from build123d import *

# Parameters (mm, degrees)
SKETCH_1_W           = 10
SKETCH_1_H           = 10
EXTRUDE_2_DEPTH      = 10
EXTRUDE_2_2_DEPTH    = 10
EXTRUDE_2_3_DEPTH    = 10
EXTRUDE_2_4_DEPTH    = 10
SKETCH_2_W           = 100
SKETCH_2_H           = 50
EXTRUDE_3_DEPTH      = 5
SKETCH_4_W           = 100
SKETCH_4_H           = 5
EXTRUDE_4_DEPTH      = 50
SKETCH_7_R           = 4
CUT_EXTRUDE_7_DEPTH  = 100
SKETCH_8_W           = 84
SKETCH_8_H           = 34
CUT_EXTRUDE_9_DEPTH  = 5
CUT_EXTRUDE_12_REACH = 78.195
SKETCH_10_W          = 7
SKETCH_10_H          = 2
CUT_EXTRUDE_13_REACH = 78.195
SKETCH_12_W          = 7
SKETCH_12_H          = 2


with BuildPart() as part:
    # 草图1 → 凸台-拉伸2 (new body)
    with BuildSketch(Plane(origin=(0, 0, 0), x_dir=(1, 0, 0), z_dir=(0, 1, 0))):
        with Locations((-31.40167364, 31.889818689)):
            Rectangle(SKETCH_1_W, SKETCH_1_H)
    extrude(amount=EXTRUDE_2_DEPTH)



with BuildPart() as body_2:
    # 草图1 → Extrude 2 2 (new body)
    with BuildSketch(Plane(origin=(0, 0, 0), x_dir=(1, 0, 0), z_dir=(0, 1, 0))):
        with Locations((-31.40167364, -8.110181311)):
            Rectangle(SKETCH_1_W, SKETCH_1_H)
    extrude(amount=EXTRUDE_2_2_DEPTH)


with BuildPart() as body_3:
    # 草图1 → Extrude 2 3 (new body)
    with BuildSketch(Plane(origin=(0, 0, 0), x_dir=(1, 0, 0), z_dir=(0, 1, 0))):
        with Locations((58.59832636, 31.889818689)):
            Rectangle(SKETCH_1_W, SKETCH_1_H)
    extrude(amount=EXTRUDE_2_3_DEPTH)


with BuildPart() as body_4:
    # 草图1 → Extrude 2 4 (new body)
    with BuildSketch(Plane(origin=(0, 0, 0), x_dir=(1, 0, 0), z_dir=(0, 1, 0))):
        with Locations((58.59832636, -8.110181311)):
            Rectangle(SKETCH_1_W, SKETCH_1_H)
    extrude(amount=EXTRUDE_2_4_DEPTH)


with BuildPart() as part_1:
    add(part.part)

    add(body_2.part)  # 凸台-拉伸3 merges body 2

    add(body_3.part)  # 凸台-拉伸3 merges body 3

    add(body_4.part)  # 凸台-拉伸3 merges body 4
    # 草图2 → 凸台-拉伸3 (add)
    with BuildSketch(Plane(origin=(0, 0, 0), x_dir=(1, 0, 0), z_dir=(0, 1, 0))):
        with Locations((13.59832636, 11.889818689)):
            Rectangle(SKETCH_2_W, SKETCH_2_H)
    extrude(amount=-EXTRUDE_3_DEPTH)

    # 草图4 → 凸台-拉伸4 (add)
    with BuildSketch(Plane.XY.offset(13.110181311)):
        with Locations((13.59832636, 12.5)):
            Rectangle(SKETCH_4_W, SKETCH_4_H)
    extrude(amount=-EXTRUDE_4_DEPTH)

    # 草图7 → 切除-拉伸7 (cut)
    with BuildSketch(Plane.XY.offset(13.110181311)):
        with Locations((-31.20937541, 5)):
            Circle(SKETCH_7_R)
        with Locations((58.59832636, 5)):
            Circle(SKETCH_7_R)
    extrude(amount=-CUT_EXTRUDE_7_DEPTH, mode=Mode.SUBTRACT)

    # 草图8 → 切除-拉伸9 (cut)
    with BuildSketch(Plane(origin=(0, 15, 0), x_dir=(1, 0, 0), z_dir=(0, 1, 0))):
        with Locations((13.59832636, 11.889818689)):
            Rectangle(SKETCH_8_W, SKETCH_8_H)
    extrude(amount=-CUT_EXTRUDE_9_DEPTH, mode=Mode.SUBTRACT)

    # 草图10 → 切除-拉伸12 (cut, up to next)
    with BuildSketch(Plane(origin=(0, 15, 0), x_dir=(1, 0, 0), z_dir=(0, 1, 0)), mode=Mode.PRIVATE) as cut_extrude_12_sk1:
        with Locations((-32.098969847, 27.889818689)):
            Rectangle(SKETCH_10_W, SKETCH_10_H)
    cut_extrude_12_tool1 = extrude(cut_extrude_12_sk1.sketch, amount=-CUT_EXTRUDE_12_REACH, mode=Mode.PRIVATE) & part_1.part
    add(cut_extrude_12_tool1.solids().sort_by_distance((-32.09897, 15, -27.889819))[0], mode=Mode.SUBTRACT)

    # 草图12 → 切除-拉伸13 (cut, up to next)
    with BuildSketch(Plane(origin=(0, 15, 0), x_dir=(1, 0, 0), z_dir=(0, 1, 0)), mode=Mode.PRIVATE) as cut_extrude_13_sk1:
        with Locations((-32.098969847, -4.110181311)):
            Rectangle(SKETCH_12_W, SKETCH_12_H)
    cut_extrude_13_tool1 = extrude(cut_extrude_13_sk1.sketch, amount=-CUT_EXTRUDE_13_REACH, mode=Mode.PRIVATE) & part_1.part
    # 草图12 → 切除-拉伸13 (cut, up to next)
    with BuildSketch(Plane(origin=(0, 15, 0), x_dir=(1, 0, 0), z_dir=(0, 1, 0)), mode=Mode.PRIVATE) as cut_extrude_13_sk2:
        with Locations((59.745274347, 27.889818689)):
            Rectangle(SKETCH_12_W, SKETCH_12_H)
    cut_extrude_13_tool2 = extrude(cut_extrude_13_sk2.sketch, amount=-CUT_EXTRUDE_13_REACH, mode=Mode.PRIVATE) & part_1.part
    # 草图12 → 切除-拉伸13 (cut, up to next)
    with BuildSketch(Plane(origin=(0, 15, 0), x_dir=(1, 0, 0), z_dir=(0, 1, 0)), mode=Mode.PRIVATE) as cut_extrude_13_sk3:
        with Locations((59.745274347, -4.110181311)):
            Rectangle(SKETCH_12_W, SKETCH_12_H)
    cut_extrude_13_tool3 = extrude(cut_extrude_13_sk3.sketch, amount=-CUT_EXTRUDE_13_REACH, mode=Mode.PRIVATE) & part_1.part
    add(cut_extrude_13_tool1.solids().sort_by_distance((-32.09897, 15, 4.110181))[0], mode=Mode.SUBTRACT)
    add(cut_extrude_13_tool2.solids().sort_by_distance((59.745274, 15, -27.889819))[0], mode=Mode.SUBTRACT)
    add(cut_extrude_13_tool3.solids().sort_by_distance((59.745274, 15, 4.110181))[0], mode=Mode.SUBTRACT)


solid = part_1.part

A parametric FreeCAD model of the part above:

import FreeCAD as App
import Part
import Sketcher

doc = App.newDocument("Part")
params = doc.addObject("Spreadsheet::Sheet", "Params")
for row, (alias, value) in enumerate([
    ("sketch1_width", "10 mm"),
    ("pad1_length", "10 mm"),
    ("sketch2_width", "10 mm"),
    ("pad2_length", "10 mm"),
    ("sketch3_width", "10 mm"),
    ("pad3_length", "10 mm"),
    ("sketch4_width", "10 mm"),
    ("pad4_length", "10 mm"),
    ("sketch5_width", "100 mm"),
    ("sketch5_height", "50 mm"),
    ("pad5_length", "5 mm"),
    ("sketch6_width", "100 mm"),
    ("sketch6_height", "5 mm"),
    ("pad6_length", "50 mm"),
    ("sketch7_diameter", "8 mm"),
    ("pocket1_length", "100 mm"),
    ("sketch8_width", "84 mm"),
    ("sketch8_height", "34 mm"),
    ("pocket2_length", "5 mm"),
    ("sketch9_width", "7 mm"),
    ("sketch9_height", "2 mm"),
    ("pocket3_length", "20 mm"),
    ("sketch10_width", "7 mm"),
    ("sketch10_height", "2 mm"),
    ("sketch11_width", "7 mm"),
    ("sketch11_height", "2 mm"),
    ("pocket5_length", "20 mm"),
    ("sketch12_width", "7 mm"),
    ("sketch12_height", "2 mm"),
    ("pocket6_length", "20 mm"),
], start=1):
    params.set(f"A{row}", alias)
    params.set(f"B{row}", "=" + value)
    params.setAlias(f"B{row}", alias)

body = doc.addObject("PartDesign::Body", "Body")

sketch1 = body.newObject("Sketcher::SketchObject", "Sketch")
sketch1.AttachmentSupport = (doc.getObject("XZ_Plane"), [""])
sketch1.MapMode = "FlatFace"
sketch1.addGeometry([
    Part.LineSegment(App.Vector(-36.401674, -36.889819, 0), App.Vector(-36.401674, -26.889819, 0)),
    Part.LineSegment(App.Vector(-36.401674, -26.889819, 0), App.Vector(-26.401674, -26.889819, 0)),
    Part.LineSegment(App.Vector(-26.401674, -26.889819, 0), App.Vector(-26.401674, -36.889819, 0)),
    Part.LineSegment(App.Vector(-26.401674, -36.889819, 0), App.Vector(-36.401674, -36.889819, 0)),
], False)
sketch1.addConstraint([
    Sketcher.Constraint("Coincident", 0, 2, 1, 1),
    Sketcher.Constraint("Coincident", 1, 2, 2, 1),
    Sketcher.Constraint("Coincident", 2, 2, 3, 1),
    Sketcher.Constraint("Coincident", 3, 2, 0, 1),
    Sketcher.Constraint("Vertical", 0),
    Sketcher.Constraint("Horizontal", 1),
    Sketcher.Constraint("Vertical", 2),
    Sketcher.Constraint("Horizontal", 3),
    Sketcher.Constraint("Equal", 3, 0),
    Sketcher.Constraint("DistanceX", 1, 1, 1, 2, 10.0),
    Sketcher.Constraint("DistanceY", 0, 2, -1, 1, 26.889819),
    Sketcher.Constraint("DistanceX", 0, 2, -1, 1, 36.401674),
])
sketch1.setExpression("Constraints[9]", "Params.sketch1_width")
pad1 = body.newObject("PartDesign::Pad", "Pad")
pad1.Profile = sketch1
pad1.setExpression("Length", "Params.pad1_length")
pad1.Reversed = True
body2 = doc.addObject("PartDesign::Body", "Body001")

sketch2 = body2.newObject("Sketcher::SketchObject", "Sketch001")
sketch2.AttachmentSupport = (doc.getObject("XZ_Plane001"), [""])
sketch2.MapMode = "FlatFace"
sketch2.addGeometry([
    Part.LineSegment(App.Vector(-36.401674, 3.110181, 0), App.Vector(-36.401674, 13.110181, 0)),
    Part.LineSegment(App.Vector(-36.401674, 13.110181, 0), App.Vector(-26.401674, 13.110181, 0)),
    Part.LineSegment(App.Vector(-26.401674, 13.110181, 0), App.Vector(-26.401674, 3.110181, 0)),
    Part.LineSegment(App.Vector(-26.401674, 3.110181, 0), App.Vector(-36.401674, 3.110181, 0)),
], False)
sketch2.addConstraint([
    Sketcher.Constraint("Coincident", 0, 2, 1, 1),
    Sketcher.Constraint("Coincident", 1, 2, 2, 1),
    Sketcher.Constraint("Coincident", 2, 2, 3, 1),
    Sketcher.Constraint("Coincident", 3, 2, 0, 1),
    Sketcher.Constraint("Vertical", 0),
    Sketcher.Constraint("Horizontal", 1),
    Sketcher.Constraint("Vertical", 2),
    Sketcher.Constraint("Horizontal", 3),
    Sketcher.Constraint("Equal", 3, 0),
    Sketcher.Constraint("DistanceX", 1, 1, 1, 2, 10.0),
    Sketcher.Constraint("DistanceY", -1, 1, 0, 2, 13.110181),
    Sketcher.Constraint("DistanceX", 0, 2, -1, 1, 36.401674),
])
sketch2.setExpression("Constraints[9]", "Params.sketch2_width")
pad2 = body2.newObject("PartDesign::Pad", "Pad001")
pad2.Profile = sketch2
pad2.setExpression("Length", "Params.pad2_length")
pad2.Reversed = True
body3 = doc.addObject("PartDesign::Body", "Body002")

sketch3 = body3.newObject("Sketcher::SketchObject", "Sketch002")
sketch3.AttachmentSupport = (doc.getObject("XZ_Plane002"), [""])
sketch3.MapMode = "FlatFace"
sketch3.addGeometry([
    Part.LineSegment(App.Vector(53.598326, -36.889819, 0), App.Vector(53.598326, -26.889819, 0)),
    Part.LineSegment(App.Vector(53.598326, -26.889819, 0), App.Vector(63.598326, -26.889819, 0)),
    Part.LineSegment(App.Vector(63.598326, -26.889819, 0), App.Vector(63.598326, -36.889819, 0)),
    Part.LineSegment(App.Vector(63.598326, -36.889819, 0), App.Vector(53.598326, -36.889819, 0)),
], False)
sketch3.addConstraint([
    Sketcher.Constraint("Coincident", 0, 2, 1, 1),
    Sketcher.Constraint("Coincident", 1, 2, 2, 1),
    Sketcher.Constraint("Coincident", 2, 2, 3, 1),
    Sketcher.Constraint("Coincident", 3, 2, 0, 1),
    Sketcher.Constraint("Vertical", 0),
    Sketcher.Constraint("Horizontal", 1),
    Sketcher.Constraint("Vertical", 2),
    Sketcher.Constraint("Horizontal", 3),
    Sketcher.Constraint("Equal", 3, 0),
    Sketcher.Constraint("DistanceX", 1, 1, 1, 2, 10.0),
    Sketcher.Constraint("DistanceY", 0, 2, -1, 1, 26.889819),
    Sketcher.Constraint("DistanceX", -1, 1, 0, 2, 53.598326),
])
sketch3.setExpression("Constraints[9]", "Params.sketch3_width")
pad3 = body3.newObject("PartDesign::Pad", "Pad002")
pad3.Profile = sketch3
pad3.setExpression("Length", "Params.pad3_length")
pad3.Reversed = True
body4 = doc.addObject("PartDesign::Body", "Body003")

sketch4 = body4.newObject("Sketcher::SketchObject", "Sketch003")
sketch4.AttachmentSupport = (doc.getObject("XZ_Plane003"), [""])
sketch4.MapMode = "FlatFace"
sketch4.addGeometry([
    Part.LineSegment(App.Vector(53.598326, 3.110181, 0), App.Vector(53.598326, 13.110181, 0)),
    Part.LineSegment(App.Vector(53.598326, 13.110181, 0), App.Vector(63.598326, 13.110181, 0)),
    Part.LineSegment(App.Vector(63.598326, 13.110181, 0), App.Vector(63.598326, 3.110181, 0)),
    Part.LineSegment(App.Vector(63.598326, 3.110181, 0), App.Vector(53.598326, 3.110181, 0)),
], False)
sketch4.addConstraint([
    Sketcher.Constraint("Coincident", 0, 2, 1, 1),
    Sketcher.Constraint("Coincident", 1, 2, 2, 1),
    Sketcher.Constraint("Coincident", 2, 2, 3, 1),
    Sketcher.Constraint("Coincident", 3, 2, 0, 1),
    Sketcher.Constraint("Vertical", 0),
    Sketcher.Constraint("Horizontal", 1),
    Sketcher.Constraint("Vertical", 2),
    Sketcher.Constraint("Horizontal", 3),
    Sketcher.Constraint("Equal", 3, 0),
    Sketcher.Constraint("DistanceX", 1, 1, 1, 2, 10.0),
    Sketcher.Constraint("DistanceY", -1, 1, 0, 2, 13.110181),
    Sketcher.Constraint("DistanceX", -1, 1, 0, 2, 53.598326),
])
sketch4.setExpression("Constraints[9]", "Params.sketch4_width")
pad4 = body4.newObject("PartDesign::Pad", "Pad003")
pad4.Profile = sketch4
pad4.setExpression("Length", "Params.pad4_length")
pad4.Reversed = True
body.AllowCompound = True
doc.recompute()

boolean = body.newObject("PartDesign::Boolean", "Boolean")
boolean.Type = "Fuse"
boolean.addObjects([body2])
doc.recompute()

boolean2 = body.newObject("PartDesign::Boolean", "Boolean001")
boolean2.Type = "Fuse"
boolean2.addObjects([body3])
doc.recompute()

boolean3 = body.newObject("PartDesign::Boolean", "Boolean002")
boolean3.Type = "Fuse"
boolean3.addObjects([body4])

sketch5 = body.newObject("Sketcher::SketchObject", "Sketch004")
sketch5.AttachmentSupport = (doc.getObject("XZ_Plane"), [""])
sketch5.MapMode = "FlatFace"
sketch5.addGeometry([
    Part.LineSegment(App.Vector(-36.401674, -36.889819, 0), App.Vector(-36.401674, 13.110181, 0)),
    Part.LineSegment(App.Vector(-36.401674, 13.110181, 0), App.Vector(63.598326, 13.110181, 0)),
    Part.LineSegment(App.Vector(63.598326, 13.110181, 0), App.Vector(63.598326, -36.889819, 0)),
    Part.LineSegment(App.Vector(63.598326, -36.889819, 0), App.Vector(-36.401674, -36.889819, 0)),
], False)
sketch5.addConstraint([
    Sketcher.Constraint("Coincident", 0, 2, 1, 1),
    Sketcher.Constraint("Coincident", 1, 2, 2, 1),
    Sketcher.Constraint("Coincident", 2, 2, 3, 1),
    Sketcher.Constraint("Coincident", 3, 2, 0, 1),
    Sketcher.Constraint("Vertical", 0),
    Sketcher.Constraint("Horizontal", 1),
    Sketcher.Constraint("Vertical", 2),
    Sketcher.Constraint("Horizontal", 3),
    Sketcher.Constraint("DistanceX", 1, 1, 1, 2, 100.0),
    Sketcher.Constraint("DistanceY", 0, 1, 0, 2, 50.0),
    Sketcher.Constraint("DistanceY", -1, 1, 0, 2, 13.110181),
    Sketcher.Constraint("DistanceX", 0, 2, -1, 1, 36.401674),
])
sketch5.setExpression("Constraints[8]", "Params.sketch5_width")
sketch5.setExpression("Constraints[9]", "Params.sketch5_height")
pad5 = body.newObject("PartDesign::Pad", "Pad004")
pad5.Profile = sketch5
pad5.setExpression("Length", "Params.pad5_length")

sketch6 = body.newObject("Sketcher::SketchObject", "Sketch005")
sketch6.AttachmentSupport = (doc.getObject("XY_Plane"), [""])
sketch6.MapMode = "FlatFace"
sketch6.AttachmentOffset = App.Placement(App.Vector(0, 0, 13.110181), App.Rotation())
sketch6.addGeometry([
    Part.LineSegment(App.Vector(-36.401674, 15, 0), App.Vector(-36.401674, 10, 0)),
    Part.LineSegment(App.Vector(-36.401674, 10, 0), App.Vector(63.598326, 10, 0)),
    Part.LineSegment(App.Vector(63.598326, 10, 0), App.Vector(63.598326, 15, 0)),
    Part.LineSegment(App.Vector(63.598326, 15, 0), App.Vector(-36.401674, 15, 0)),
], False)
sketch6.addConstraint([
    Sketcher.Constraint("Coincident", 0, 2, 1, 1),
    Sketcher.Constraint("Coincident", 1, 2, 2, 1),
    Sketcher.Constraint("Coincident", 2, 2, 3, 1),
    Sketcher.Constraint("Coincident", 3, 2, 0, 1),
    Sketcher.Constraint("Vertical", 0),
    Sketcher.Constraint("Horizontal", 1),
    Sketcher.Constraint("Vertical", 2),
    Sketcher.Constraint("Horizontal", 3),
    Sketcher.Constraint("DistanceX", 1, 1, 1, 2, 100.0),
    Sketcher.Constraint("DistanceY", 0, 2, 0, 1, 5.0),
    Sketcher.Constraint("DistanceY", -1, 1, 0, 2, 10.0),
    Sketcher.Constraint("DistanceX", 0, 2, -1, 1, 36.401674),
])
sketch6.setExpression("Constraints[8]", "Params.sketch6_width")
sketch6.setExpression("Constraints[9]", "Params.sketch6_height")
pad6 = body.newObject("PartDesign::Pad", "Pad005")
pad6.Profile = sketch6
pad6.setExpression("Length", "Params.pad6_length")
pad6.Reversed = True

sketch7 = body.newObject("Sketcher::SketchObject", "Sketch006")
sketch7.AttachmentSupport = (doc.getObject("XY_Plane"), [""])
sketch7.MapMode = "FlatFace"
sketch7.AttachmentOffset = App.Placement(App.Vector(0, 0, 13.110181), App.Rotation())
sketch7.addGeometry([
    Part.Circle(App.Vector(-31.209375, 5, 0), App.Vector(0, 0, 1), 4),
    Part.Circle(App.Vector(58.598326, 5, 0), App.Vector(0, 0, 1), 4),
], False)
sketch7.addConstraint([
    Sketcher.Constraint("Equal", 0, 1),
    Sketcher.Constraint("Horizontal", 0, 3, 1, 3),
    Sketcher.Constraint("Diameter", 0, 8.0),
    Sketcher.Constraint("DistanceY", -1, 1, 0, 3, 5.0),
    Sketcher.Constraint("DistanceX", 0, 3, 1, 3, 89.807702),
    Sketcher.Constraint("DistanceX", 0, 3, -1, 1, 31.209375),
])
sketch7.setExpression("Constraints[2]", "Params.sketch7_diameter")
pocket1 = body.newObject("PartDesign::Pocket", "Pocket")
pocket1.Profile = sketch7
pocket1.setExpression("Length", "Params.pocket1_length")

sketch8 = body.newObject("Sketcher::SketchObject", "Sketch007")
sketch8.AttachmentSupport = (doc.getObject("XZ_Plane"), [""])
sketch8.MapMode = "FlatFace"
sketch8.AttachmentOffset = App.Placement(App.Vector(0, 0, -15), App.Rotation())
sketch8.addGeometry([
    Part.LineSegment(App.Vector(-28.401674, -28.889819, 0), App.Vector(-28.401674, 5.110181, 0)),
    Part.LineSegment(App.Vector(-28.401674, 5.110181, 0), App.Vector(55.598326, 5.110181, 0)),
    Part.LineSegment(App.Vector(55.598326, 5.110181, 0), App.Vector(55.598326, -28.889819, 0)),
    Part.LineSegment(App.Vector(55.598326, -28.889819, 0), App.Vector(-28.401674, -28.889819, 0)),
], False)
sketch8.addConstraint([
    Sketcher.Constraint("Coincident", 0, 2, 1, 1),
    Sketcher.Constraint("Coincident", 1, 2, 2, 1),
    Sketcher.Constraint("Coincident", 2, 2, 3, 1),
    Sketcher.Constraint("Coincident", 3, 2, 0, 1),
    Sketcher.Constraint("Vertical", 0),
    Sketcher.Constraint("Horizontal", 1),
    Sketcher.Constraint("Vertical", 2),
    Sketcher.Constraint("Horizontal", 3),
    Sketcher.Constraint("DistanceX", 1, 1, 1, 2, 84.0),
    Sketcher.Constraint("DistanceY", 0, 1, 0, 2, 34.0),
    Sketcher.Constraint("DistanceY", -1, 1, 0, 2, 5.110181),
    Sketcher.Constraint("DistanceX", 0, 2, -1, 1, 28.401674),
])
sketch8.setExpression("Constraints[8]", "Params.sketch8_width")
sketch8.setExpression("Constraints[9]", "Params.sketch8_height")
pocket2 = body.newObject("PartDesign::Pocket", "Pocket001")
pocket2.Profile = sketch8
pocket2.setExpression("Length", "Params.pocket2_length")
pocket2.Reversed = True

sketch9 = body.newObject("Sketcher::SketchObject", "Sketch008")
sketch9.AttachmentSupport = (doc.getObject("XZ_Plane"), [""])
sketch9.MapMode = "FlatFace"
sketch9.AttachmentOffset = App.Placement(App.Vector(0, 0, -15), App.Rotation())
sketch9.addGeometry([
    Part.LineSegment(App.Vector(-35.59897, -28.889819, 0), App.Vector(-35.59897, -26.889819, 0)),
    Part.LineSegment(App.Vector(-35.59897, -26.889819, 0), App.Vector(-28.59897, -26.889819, 0)),
    Part.LineSegment(App.Vector(-28.59897, -26.889819, 0), App.Vector(-28.59897, -28.889819, 0)),
    Part.LineSegment(App.Vector(-28.59897, -28.889819, 0), App.Vector(-35.59897, -28.889819, 0)),
], False)
sketch9.addConstraint([
    Sketcher.Constraint("Coincident", 0, 2, 1, 1),
    Sketcher.Constraint("Coincident", 1, 2, 2, 1),
    Sketcher.Constraint("Coincident", 2, 2, 3, 1),
    Sketcher.Constraint("Coincident", 3, 2, 0, 1),
    Sketcher.Constraint("Vertical", 0),
    Sketcher.Constraint("Horizontal", 1),
    Sketcher.Constraint("Vertical", 2),
    Sketcher.Constraint("Horizontal", 3),
    Sketcher.Constraint("DistanceX", 1, 1, 1, 2, 7.0),
    Sketcher.Constraint("DistanceY", 0, 1, 0, 2, 2.0),
    Sketcher.Constraint("DistanceX", 0, 2, -1, 1, 35.59897),
    Sketcher.Constraint("DistanceY", 0, 2, -1, 1, 26.889819),
])
sketch9.setExpression("Constraints[8]", "Params.sketch9_width")
sketch9.setExpression("Constraints[9]", "Params.sketch9_height")
pocket3 = body.newObject("PartDesign::Pocket", "Pocket002")
pocket3.Profile = sketch9
pocket3.setExpression("Length", "Params.pocket3_length")
pocket3.Reversed = True

sketch10 = body.newObject("Sketcher::SketchObject", "Sketch009")
sketch10.AttachmentSupport = (doc.getObject("XZ_Plane"), [""])
sketch10.MapMode = "FlatFace"
sketch10.AttachmentOffset = App.Placement(App.Vector(0, 0, -15), App.Rotation())
sketch10.addGeometry([
    Part.LineSegment(App.Vector(-35.59897, 3.110181, 0), App.Vector(-35.59897, 5.110181, 0)),
    Part.LineSegment(App.Vector(-35.59897, 5.110181, 0), App.Vector(-28.59897, 5.110181, 0)),
    Part.LineSegment(App.Vector(-28.59897, 5.110181, 0), App.Vector(-28.59897, 3.110181, 0)),
    Part.LineSegment(App.Vector(-28.59897, 3.110181, 0), App.Vector(-35.59897, 3.110181, 0)),
], False)
sketch10.addConstraint([
    Sketcher.Constraint("Coincident", 0, 2, 1, 1),
    Sketcher.Constraint("Coincident", 1, 2, 2, 1),
    Sketcher.Constraint("Coincident", 2, 2, 3, 1),
    Sketcher.Constraint("Coincident", 3, 2, 0, 1),
    Sketcher.Constraint("Vertical", 0),
    Sketcher.Constraint("Horizontal", 1),
    Sketcher.Constraint("Vertical", 2),
    Sketcher.Constraint("Horizontal", 3),
    Sketcher.Constraint("DistanceX", 1, 1, 1, 2, 7.0),
    Sketcher.Constraint("DistanceY", 0, 1, 0, 2, 2.0),
    Sketcher.Constraint("DistanceX", 0, 2, -1, 1, 35.59897),
    Sketcher.Constraint("DistanceY", -1, 1, 0, 2, 5.110181),
])
sketch10.setExpression("Constraints[8]", "Params.sketch10_width")
sketch10.setExpression("Constraints[9]", "Params.sketch10_height")
pocket4 = body.newObject("PartDesign::Pocket", "Pocket003")
pocket4.Profile = sketch10
pocket4.Type = "UpToFirst"
pocket4.Reversed = True

sketch11 = body.newObject("Sketcher::SketchObject", "Sketch010")
sketch11.AttachmentSupport = (doc.getObject("XZ_Plane"), [""])
sketch11.MapMode = "FlatFace"
sketch11.AttachmentOffset = App.Placement(App.Vector(0, 0, -15), App.Rotation())
sketch11.addGeometry([
    Part.LineSegment(App.Vector(56.245274, -28.889819, 0), App.Vector(56.245274, -26.889819, 0)),
    Part.LineSegment(App.Vector(56.245274, -26.889819, 0), App.Vector(63.245274, -26.889819, 0)),
    Part.LineSegment(App.Vector(63.245274, -26.889819, 0), App.Vector(63.245274, -28.889819, 0)),
    Part.LineSegment(App.Vector(63.245274, -28.889819, 0), App.Vector(56.245274, -28.889819, 0)),
], False)
sketch11.addConstraint([
    Sketcher.Constraint("Coincident", 0, 2, 1, 1),
    Sketcher.Constraint("Coincident", 1, 2, 2, 1),
    Sketcher.Constraint("Coincident", 2, 2, 3, 1),
    Sketcher.Constraint("Coincident", 3, 2, 0, 1),
    Sketcher.Constraint("Vertical", 0),
    Sketcher.Constraint("Horizontal", 1),
    Sketcher.Constraint("Vertical", 2),
    Sketcher.Constraint("Horizontal", 3),
    Sketcher.Constraint("DistanceX", 1, 1, 1, 2, 7.0),
    Sketcher.Constraint("DistanceY", 0, 1, 0, 2, 2.0),
    Sketcher.Constraint("DistanceY", 0, 2, -1, 1, 26.889819),
    Sketcher.Constraint("DistanceX", -1, 1, 0, 2, 56.245274),
])
sketch11.setExpression("Constraints[8]", "Params.sketch11_width")
sketch11.setExpression("Constraints[9]", "Params.sketch11_height")
pocket5 = body.newObject("PartDesign::Pocket", "Pocket004")
pocket5.Profile = sketch11
pocket5.setExpression("Length", "Params.pocket5_length")
pocket5.Reversed = True

sketch12 = body.newObject("Sketcher::SketchObject", "Sketch011")
sketch12.AttachmentSupport = (doc.getObject("XZ_Plane"), [""])
sketch12.MapMode = "FlatFace"
sketch12.AttachmentOffset = App.Placement(App.Vector(0, 0, -15), App.Rotation())
sketch12.addGeometry([
    Part.LineSegment(App.Vector(56.245274, 3.110181, 0), App.Vector(56.245274, 5.110181, 0)),
    Part.LineSegment(App.Vector(56.245274, 5.110181, 0), App.Vector(63.245274, 5.110181, 0)),
    Part.LineSegment(App.Vector(63.245274, 5.110181, 0), App.Vector(63.245274, 3.110181, 0)),
    Part.LineSegment(App.Vector(63.245274, 3.110181, 0), App.Vector(56.245274, 3.110181, 0)),
], False)
sketch12.addConstraint([
    Sketcher.Constraint("Coincident", 0, 2, 1, 1),
    Sketcher.Constraint("Coincident", 1, 2, 2, 1),
    Sketcher.Constraint("Coincident", 2, 2, 3, 1),
    Sketcher.Constraint("Coincident", 3, 2, 0, 1),
    Sketcher.Constraint("Vertical", 0),
    Sketcher.Constraint("Horizontal", 1),
    Sketcher.Constraint("Vertical", 2),
    Sketcher.Constraint("Horizontal", 3),
    Sketcher.Constraint("DistanceX", 1, 1, 1, 2, 7.0),
    Sketcher.Constraint("DistanceY", 0, 1, 0, 2, 2.0),
    Sketcher.Constraint("DistanceY", -1, 1, 0, 2, 5.110181),
    Sketcher.Constraint("DistanceX", -1, 1, 0, 2, 56.245274),
])
sketch12.setExpression("Constraints[8]", "Params.sketch12_width")
sketch12.setExpression("Constraints[9]", "Params.sketch12_height")
pocket6 = body.newObject("PartDesign::Pocket", "Pocket005")
pocket6.Profile = sketch12
pocket6.setExpression("Length", "Params.pocket6_length")
pocket6.Reversed = True

doc.recompute()
